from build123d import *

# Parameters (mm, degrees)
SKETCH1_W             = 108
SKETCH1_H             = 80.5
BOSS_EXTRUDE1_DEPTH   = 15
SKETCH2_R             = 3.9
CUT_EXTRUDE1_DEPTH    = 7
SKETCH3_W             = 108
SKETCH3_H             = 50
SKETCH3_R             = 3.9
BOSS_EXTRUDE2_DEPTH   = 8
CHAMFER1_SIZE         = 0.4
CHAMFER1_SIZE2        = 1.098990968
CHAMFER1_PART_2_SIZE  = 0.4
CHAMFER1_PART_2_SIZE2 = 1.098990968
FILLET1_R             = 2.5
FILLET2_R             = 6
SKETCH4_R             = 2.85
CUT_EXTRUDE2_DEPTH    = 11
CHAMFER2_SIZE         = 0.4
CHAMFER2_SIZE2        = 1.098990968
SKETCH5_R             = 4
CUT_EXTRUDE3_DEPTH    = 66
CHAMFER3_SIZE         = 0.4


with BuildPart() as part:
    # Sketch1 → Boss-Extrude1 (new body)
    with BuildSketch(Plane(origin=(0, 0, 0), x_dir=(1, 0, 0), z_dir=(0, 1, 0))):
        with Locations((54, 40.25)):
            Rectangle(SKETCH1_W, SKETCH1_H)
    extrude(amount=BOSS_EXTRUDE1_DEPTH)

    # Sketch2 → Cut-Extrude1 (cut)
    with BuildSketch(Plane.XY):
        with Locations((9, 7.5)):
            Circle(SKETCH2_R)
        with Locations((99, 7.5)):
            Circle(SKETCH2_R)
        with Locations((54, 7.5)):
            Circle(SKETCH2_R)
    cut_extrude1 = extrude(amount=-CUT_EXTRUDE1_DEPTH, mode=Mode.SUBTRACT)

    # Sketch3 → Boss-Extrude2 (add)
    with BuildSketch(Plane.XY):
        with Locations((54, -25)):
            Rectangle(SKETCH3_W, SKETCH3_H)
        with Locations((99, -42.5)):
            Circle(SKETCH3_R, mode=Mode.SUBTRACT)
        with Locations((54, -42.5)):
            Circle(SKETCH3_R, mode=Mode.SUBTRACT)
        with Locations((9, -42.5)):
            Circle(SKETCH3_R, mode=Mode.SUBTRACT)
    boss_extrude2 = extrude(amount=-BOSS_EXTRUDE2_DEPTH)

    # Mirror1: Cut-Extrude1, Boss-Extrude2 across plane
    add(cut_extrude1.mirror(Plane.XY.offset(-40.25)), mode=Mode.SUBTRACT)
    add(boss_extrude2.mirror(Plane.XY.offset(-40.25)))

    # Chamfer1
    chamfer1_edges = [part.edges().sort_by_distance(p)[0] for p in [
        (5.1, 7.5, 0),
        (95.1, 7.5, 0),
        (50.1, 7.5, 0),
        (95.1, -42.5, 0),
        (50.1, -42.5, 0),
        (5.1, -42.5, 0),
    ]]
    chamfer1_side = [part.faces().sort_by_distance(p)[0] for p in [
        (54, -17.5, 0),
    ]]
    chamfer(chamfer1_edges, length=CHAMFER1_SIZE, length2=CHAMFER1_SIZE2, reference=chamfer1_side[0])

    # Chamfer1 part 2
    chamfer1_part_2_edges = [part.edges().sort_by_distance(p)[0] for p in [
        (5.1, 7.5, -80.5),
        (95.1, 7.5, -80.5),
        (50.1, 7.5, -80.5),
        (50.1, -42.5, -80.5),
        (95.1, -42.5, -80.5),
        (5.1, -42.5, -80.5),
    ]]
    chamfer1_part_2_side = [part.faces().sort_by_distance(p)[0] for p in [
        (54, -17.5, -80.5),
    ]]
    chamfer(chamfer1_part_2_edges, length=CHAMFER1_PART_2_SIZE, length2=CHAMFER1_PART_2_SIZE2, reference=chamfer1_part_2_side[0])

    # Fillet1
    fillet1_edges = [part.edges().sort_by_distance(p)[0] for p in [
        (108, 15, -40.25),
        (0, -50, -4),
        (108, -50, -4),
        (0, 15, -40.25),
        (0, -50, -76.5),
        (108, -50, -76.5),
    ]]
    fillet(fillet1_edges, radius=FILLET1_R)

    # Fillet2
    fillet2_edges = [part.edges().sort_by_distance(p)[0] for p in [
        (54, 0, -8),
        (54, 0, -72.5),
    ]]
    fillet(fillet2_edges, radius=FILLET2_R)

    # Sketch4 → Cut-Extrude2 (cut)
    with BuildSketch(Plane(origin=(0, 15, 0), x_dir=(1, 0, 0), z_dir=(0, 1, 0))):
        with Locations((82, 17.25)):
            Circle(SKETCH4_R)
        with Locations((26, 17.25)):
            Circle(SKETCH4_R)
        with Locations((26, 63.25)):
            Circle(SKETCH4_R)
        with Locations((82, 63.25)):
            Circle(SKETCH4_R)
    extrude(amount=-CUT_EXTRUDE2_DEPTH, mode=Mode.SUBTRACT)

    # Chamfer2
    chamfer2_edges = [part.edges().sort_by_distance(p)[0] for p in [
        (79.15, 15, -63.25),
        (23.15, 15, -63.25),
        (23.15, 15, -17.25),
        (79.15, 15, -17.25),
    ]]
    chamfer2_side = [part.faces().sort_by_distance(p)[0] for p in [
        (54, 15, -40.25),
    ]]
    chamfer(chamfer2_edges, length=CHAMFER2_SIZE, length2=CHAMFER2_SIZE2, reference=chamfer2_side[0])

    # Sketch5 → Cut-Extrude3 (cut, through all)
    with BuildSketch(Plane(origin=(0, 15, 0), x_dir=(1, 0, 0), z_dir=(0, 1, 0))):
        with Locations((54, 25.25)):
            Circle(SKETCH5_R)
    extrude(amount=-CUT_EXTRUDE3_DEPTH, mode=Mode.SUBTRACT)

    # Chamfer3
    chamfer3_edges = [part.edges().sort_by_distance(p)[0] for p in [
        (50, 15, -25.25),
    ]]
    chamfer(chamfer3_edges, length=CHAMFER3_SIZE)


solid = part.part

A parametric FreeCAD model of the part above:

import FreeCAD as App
import Part
import Sketcher
from FreeCAD import Vector


def edges_at(feature, points):
    """Names of the edges that pass closest to the given points."""
    edges = feature.Shape.Edges
    near = lambda p: min(range(len(edges)), key=lambda i: edges[i].distToShape(Part.Vertex(*p))[0])
    return sorted({f"Edge{near(p) + 1}" for p in points})

doc = App.newDocument("Part")
params = doc.addObject("Spreadsheet::Sheet", "Params")
for row, (alias, value) in enumerate([
    ("sketch1_width", "108 mm"),
    ("sketch1_height", "80.5 mm"),
    ("pad1_length", "15 mm"),
    ("sketch2_diameter", "7.8 mm"),
    ("pocket1_length", "7 mm"),
    ("sketch3_diameter", "7.8 mm"),
    ("sketch3_width", "108 mm"),
    ("sketch3_height", "50 mm"),
    ("pad2_length", "8 mm"),
    ("chamfer_size", "0.4 mm"),
    ("chamfer_size2", "1.098991 mm"),
    ("chamfer2_size", "0.4 mm"),
    ("chamfer2_size2", "1.098991 mm"),
    ("fillet_radius", "2.5 mm"),
    ("fillet2_radius", "6 mm"),
    ("sketch4_diameter", "5.7 mm"),
    ("pocket2_length", "11 mm"),
    ("chamfer3_size", "0.4 mm"),
    ("chamfer3_size2", "1.098991 mm"),
    ("sketch5_diameter", "8 mm"),
    ("chamfer4_size", "0.4 mm"),
], start=1):
    params.set(f"A{row}", alias)
    params.set(f"B{row}", "=" + value)
    params.setAlias(f"B{row}", alias)

body = doc.addObject("PartDesign::Body", "Body")

# Sketch on XZ plane
sketch1 = body.newObject("Sketcher::SketchObject", "Sketch")
sketch1.AttachmentSupport = (doc.getObject("XZ_Plane"), [""])
sketch1.MapMode = "FlatFace"
sketch1.addGeometry([
    Part.LineSegment(Vector(0, -80, 0), Vector(0, 0, 0)),
    Part.LineSegment(Vector(0, 0, 0), Vector(108, 0, 0)),
    Part.LineSegment(Vector(108, 0, 0), Vector(108, -80, 0)),
    Part.LineSegment(Vector(108, -80, 0), Vector(0, -80, 0)),
], False)
sketch1.addConstraint([
    Sketcher.Constraint("Coincident", 0, 2, 1, 1),
    Sketcher.Constraint("Coincident", 1, 2, 2, 1),
    Sketcher.Constraint("Coincident", 2, 2, 3, 1),
    Sketcher.Constraint("Coincident", 3, 2, 0, 1),
    Sketcher.Constraint("Vertical", 0),
    Sketcher.Constraint("Horizontal", 1),
    Sketcher.Constraint("Vertical", 2),
    Sketcher.Constraint("Horizontal", 3),
    Sketcher.Constraint("Coincident", 0, 2, -1, 1),
    Sketcher.Constraint("DistanceX", 1, 1, 1, 2, 108.0),
    Sketcher.Constraint("DistanceY", 0, 1, 0, 2, 80.5),
])
sketch1.setExpression("Constraints[9]", "Params.sketch1_width")
sketch1.setExpression("Constraints[10]", "Params.sketch1_height")
pad1 = body.newObject("PartDesign::Pad", "Pad")
pad1.Profile = sketch1
pad1.setExpression("Length", "Params.pad1_length")
pad1.Reversed = True

# Sketch on XY plane
sketch2 = body.newObject("Sketcher::SketchObject", "Sketch001")
sketch2.AttachmentSupport = (doc.getObject("XY_Plane"), [""])
sketch2.MapMode = "FlatFace"
sketch2.addGeometry([
    Part.Circle(Vector(9, 7.5, 0), Vector(0, 0, 1), 3.9),
    Part.Circle(Vector(99, 7.5, 0), Vector(0, 0, 1), 3.9),
    Part.Circle(Vector(54, 7.5, 0), Vector(0, 0, 1), 3.9),
], False)
sketch2.addConstraint([
    Sketcher.Constraint("Equal", 0, 1),
    Sketcher.Constraint("Equal", 1, 2),
    Sketcher.Constraint("Horizontal", 0, 3, 1, 3),
    Sketcher.Constraint("Horizontal", 1, 3, 2, 3),
    Sketcher.Constraint("Diameter", 0, 7.8),
    Sketcher.Constraint("DistanceX", -1, 1, 0, 3, 9.0),
    Sketcher.Constraint("DistanceX", -1, 1, 1, 3, 99.0),
    Sketcher.Constraint("DistanceX", -1, 1, 2, 3, 54.0),
    Sketcher.Constraint("DistanceY", -1, 1, 0, 3, 7.5),
])
sketch2.setExpression("Constraints[4]", "Params.sketch2_diameter")
pocket1 = body.newObject("PartDesign::Pocket", "Pocket")
pocket1.Profile = sketch2
pocket1.setExpression("Length", "Params.pocket1_length")

# Sketch on XY plane
sketch3 = body.newObject("Sketcher::SketchObject", "Sketch002")
sketch3.AttachmentSupport = (doc.getObject("XY_Plane"), [""])
sketch3.MapMode = "FlatFace"
sketch3.addGeometry([
    Part.LineSegment(Vector(0, 0, 0), Vector(0, -50, 0)),  # 0
    Part.LineSegment(Vector(0, -50, 0), Vector(108, -50, 0)),  # 1
    Part.LineSegment(Vector(108, -50, 0), Vector(108, 0, 0)),  # 2
    Part.LineSegment(Vector(108, 0, 0), Vector(0, 0, 0)),  # 3
    Part.Circle(Vector(9, -42.5, 0), Vector(0, 0, 1), 3.9),  # 4
    Part.Circle(Vector(54, -42.5, 0), Vector(0, 0, 1), 3.9),  # 5
    Part.Circle(Vector(99, -42.5, 0), Vector(0, 0, 1), 3.9),  # 6
], False)
sketch3.addConstraint([
    Sketcher.Constraint("Coincident", 0, 2, 1, 1),
    Sketcher.Constraint("Coincident", 1, 2, 2, 1),
    Sketcher.Constraint("Coincident", 2, 2, 3, 1),
    Sketcher.Constraint("Coincident", 3, 2, 0, 1),
    Sketcher.Constraint("Vertical", 0),
    Sketcher.Constraint("Horizontal", 1),
    Sketcher.Constraint("Vertical", 2),
    Sketcher.Constraint("Horizontal", 3),
    Sketcher.Constraint("Coincident", 3, 2, -1, 1),
    Sketcher.Constraint("Equal", 4, 5),
    Sketcher.Constraint("Equal", 5, 6),
    Sketcher.Constraint("Horizontal", 4, 3, 5, 3),
    Sketcher.Constraint("Horizontal", 5, 3, 6, 3),
    Sketcher.Constraint("Diameter", 4, 7.8),
    Sketcher.Constraint("DistanceX", 1, 1, 1, 2, 108.0),
    Sketcher.Constraint("DistanceY", 0, 2, 0, 1, 50.0),
    Sketcher.Constraint("DistanceX", -1, 1, 4, 3, 9.0),
    Sketcher.Constraint("DistanceX", -1, 1, 5, 3, 54.0),
    Sketcher.Constraint("DistanceX", -1, 1, 6, 3, 99.0),
    Sketcher.Constraint("DistanceY", 4, 3, -1, 1, 42.5),
])
sketch3.setExpression("Constraints[13]", "Params.sketch3_diameter")
sketch3.setExpression("Constraints[14]", "Params.sketch3_width")
sketch3.setExpression("Constraints[15]", "Params.sketch3_height")
pad2 = body.newObject("PartDesign::Pad", "Pad001")
pad2.Profile = sketch3
pad2.setExpression("Length", "Params.pad2_length")
pad2.Reversed = True
doc.recompute()

datumplane = body.newObject("PartDesign::Plane", "DatumPlane")
datumplane.AttachmentSupport = (doc.getObject("XY_Plane"), [""])
datumplane.MapMode = "FlatFace"
datumplane.AttachmentOffset = App.Placement(Vector(0, 0, -40.25), App.Rotation())
mirrored = body.newObject("PartDesign::Mirrored", "Mirrored")
mirrored.Originals = [pocket1, pad2]
mirrored.MirrorPlane = (datumplane, [""])
body.Tip = mirrored
doc.recompute()

chamfer = body.newObject("PartDesign::Chamfer", "Chamfer")
chamfer.Base = (mirrored, edges_at(mirrored, [
    (5.1, 7.5, 0),
    (95.1, 7.5, 0),
    (50.1, 7.5, 0),
    (95.1, -42.5, 0),
    (50.1, -42.5, 0),
    (5.1, -42.5, 0),
]))
chamfer.ChamferType = "Two distances"
chamfer.setExpression("Size", "Params.chamfer_size")
chamfer.setExpression("Size2", "Params.chamfer_size2")
doc.recompute()

chamfer2 = body.newObject("PartDesign::Chamfer", "Chamfer001")
chamfer2.Base = (chamfer, edges_at(chamfer, [
    (5.1, 7.5, -80.5),
    (95.1, 7.5, -80.5),
    (50.1, 7.5, -80.5),
    (50.1, -42.5, -80.5),
    (95.1, -42.5, -80.5),
    (5.1, -42.5, -80.5),
]))
chamfer2.ChamferType = "Two distances"
chamfer2.setExpression("Size", "Params.chamfer2_size")
chamfer2.setExpression("Size2", "Params.chamfer2_size2")
doc.recompute()

fillet = body.newObject("PartDesign::Fillet", "Fillet")
fillet.Base = (chamfer2, edges_at(chamfer2, [
    (108, 15, -40.25),
    (0, -50, -4),
    (108, -50, -4),
    (0, 15, -40.25),
    (0, -50, -76.5),
    (108, -50, -76.5),
]))
fillet.setExpression("Radius", "Params.fillet_radius")
doc.recompute()

fillet2 = body.newObject("PartDesign::Fillet", "Fillet001")
fillet2.Base = (fillet, edges_at(fillet, [(54, 0, -8), (54, 0, -72.5)]))
fillet2.setExpression("Radius", "Params.fillet2_radius")

# Sketch on XZ plane
sketch4 = body.newObject("Sketcher::SketchObject", "Sketch003")
sketch4.AttachmentSupport = (doc.getObject("XZ_Plane"), [""])
sketch4.MapMode = "FlatFace"
sketch4.AttachmentOffset = App.Placement(Vector(0, 0, -15), App.Rotation())
sketch4.addGeometry([
    Part.Circle(Vector(82, -17.2, 0), Vector(0, 0, 1), 2.9),
    Part.Circle(Vector(26, -17.2, 0), Vector(0, 0, 1), 2.9),
    Part.Circle(Vector(26, -63.2, 0), Vector(0, 0, 1), 2.9),
    Part.Circle(Vector(82, -63.2, 0), Vector(0, 0, 1), 2.9),
], False)
sketch4.addConstraint([
    Sketcher.Constraint("Equal", 0, 1),
    Sketcher.Constraint("Equal", 1, 2),
    Sketcher.Constraint("Equal", 2, 3),
    Sketcher.Constraint("Horizontal", 0, 3, 1, 3),
    Sketcher.Constraint("Horizontal", 2, 3, 3, 3),
    Sketcher.Constraint("Vertical", 1, 3, 2, 3),
    Sketcher.Constraint("Vertical", 0, 3, 3, 3),
    Sketcher.Constraint("Diameter", 0, 5.7),
    Sketcher.Constraint("DistanceX", -1, 1, 0, 3, 82.0),
    Sketcher.Constraint("DistanceX", -1, 1, 1, 3, 26.0),
    Sketcher.Constraint("DistanceY", 2, 3, 1, 3, 46.0),
    Sketcher.Constraint("DistanceY", 0, 3, -1, 1, 17.25),
])
sketch4.setExpression("Constraints[7]", "Params.sketch4_diameter")
pocket2 = body.newObject("PartDesign::Pocket", "Pocket001")
pocket2.Profile = sketch4
pocket2.setExpression("Length", "Params.pocket2_length")
pocket2.Reversed = True
doc.recompute()

chamfer3 = body.newObject("PartDesign::Chamfer", "Chamfer002")
chamfer3.Base = (pocket2, edges_at(pocket2, [
    (79.15, 15, -63.25),
    (23.15, 15, -63.25),
    (23.15, 15, -17.25),
    (79.15, 15, -17.25),
]))
chamfer3.ChamferType = "Two distances"
chamfer3.setExpression("Size", "Params.chamfer3_size")
chamfer3.setExpression("Size2", "Params.chamfer3_size2")

# Sketch on XZ plane
sketch5 = body.newObject("Sketcher::SketchObject", "Sketch004")
sketch5.AttachmentSupport = (doc.getObject("XZ_Plane"), [""])
sketch5.MapMode = "FlatFace"
sketch5.AttachmentOffset = App.Placement(Vector(0, 0, -15), App.Rotation())
sketch5.addGeometry(Part.Circle(Vector(54, -25.2, 0), Vector(0, 0, 1), 4), False)
sketch5.addConstraint([
    Sketcher.Constraint("Diameter", 0, 8.0),
    Sketcher.Constraint("DistanceX", -1, 1, 0, 3, 54.0),
    Sketcher.Constraint("DistanceY", 0, 3, -1, 1, 25.25),
])
sketch5.setExpression("Constraints[0]", "Params.sketch5_diameter")
pocket3 = body.newObject("PartDesign::Pocket", "Pocket002")
pocket3.Profile = sketch5
pocket3.Type = "ThroughAll"
pocket3.Reversed = True
doc.recompute()

chamfer4 = body.newObject("PartDesign::Chamfer", "Chamfer003")
chamfer4.Base = (pocket3, edges_at(pocket3, [(50, 15, -25.25)]))
chamfer4.setExpression("Size", "Params.chamfer4_size")

doc.recompute()
